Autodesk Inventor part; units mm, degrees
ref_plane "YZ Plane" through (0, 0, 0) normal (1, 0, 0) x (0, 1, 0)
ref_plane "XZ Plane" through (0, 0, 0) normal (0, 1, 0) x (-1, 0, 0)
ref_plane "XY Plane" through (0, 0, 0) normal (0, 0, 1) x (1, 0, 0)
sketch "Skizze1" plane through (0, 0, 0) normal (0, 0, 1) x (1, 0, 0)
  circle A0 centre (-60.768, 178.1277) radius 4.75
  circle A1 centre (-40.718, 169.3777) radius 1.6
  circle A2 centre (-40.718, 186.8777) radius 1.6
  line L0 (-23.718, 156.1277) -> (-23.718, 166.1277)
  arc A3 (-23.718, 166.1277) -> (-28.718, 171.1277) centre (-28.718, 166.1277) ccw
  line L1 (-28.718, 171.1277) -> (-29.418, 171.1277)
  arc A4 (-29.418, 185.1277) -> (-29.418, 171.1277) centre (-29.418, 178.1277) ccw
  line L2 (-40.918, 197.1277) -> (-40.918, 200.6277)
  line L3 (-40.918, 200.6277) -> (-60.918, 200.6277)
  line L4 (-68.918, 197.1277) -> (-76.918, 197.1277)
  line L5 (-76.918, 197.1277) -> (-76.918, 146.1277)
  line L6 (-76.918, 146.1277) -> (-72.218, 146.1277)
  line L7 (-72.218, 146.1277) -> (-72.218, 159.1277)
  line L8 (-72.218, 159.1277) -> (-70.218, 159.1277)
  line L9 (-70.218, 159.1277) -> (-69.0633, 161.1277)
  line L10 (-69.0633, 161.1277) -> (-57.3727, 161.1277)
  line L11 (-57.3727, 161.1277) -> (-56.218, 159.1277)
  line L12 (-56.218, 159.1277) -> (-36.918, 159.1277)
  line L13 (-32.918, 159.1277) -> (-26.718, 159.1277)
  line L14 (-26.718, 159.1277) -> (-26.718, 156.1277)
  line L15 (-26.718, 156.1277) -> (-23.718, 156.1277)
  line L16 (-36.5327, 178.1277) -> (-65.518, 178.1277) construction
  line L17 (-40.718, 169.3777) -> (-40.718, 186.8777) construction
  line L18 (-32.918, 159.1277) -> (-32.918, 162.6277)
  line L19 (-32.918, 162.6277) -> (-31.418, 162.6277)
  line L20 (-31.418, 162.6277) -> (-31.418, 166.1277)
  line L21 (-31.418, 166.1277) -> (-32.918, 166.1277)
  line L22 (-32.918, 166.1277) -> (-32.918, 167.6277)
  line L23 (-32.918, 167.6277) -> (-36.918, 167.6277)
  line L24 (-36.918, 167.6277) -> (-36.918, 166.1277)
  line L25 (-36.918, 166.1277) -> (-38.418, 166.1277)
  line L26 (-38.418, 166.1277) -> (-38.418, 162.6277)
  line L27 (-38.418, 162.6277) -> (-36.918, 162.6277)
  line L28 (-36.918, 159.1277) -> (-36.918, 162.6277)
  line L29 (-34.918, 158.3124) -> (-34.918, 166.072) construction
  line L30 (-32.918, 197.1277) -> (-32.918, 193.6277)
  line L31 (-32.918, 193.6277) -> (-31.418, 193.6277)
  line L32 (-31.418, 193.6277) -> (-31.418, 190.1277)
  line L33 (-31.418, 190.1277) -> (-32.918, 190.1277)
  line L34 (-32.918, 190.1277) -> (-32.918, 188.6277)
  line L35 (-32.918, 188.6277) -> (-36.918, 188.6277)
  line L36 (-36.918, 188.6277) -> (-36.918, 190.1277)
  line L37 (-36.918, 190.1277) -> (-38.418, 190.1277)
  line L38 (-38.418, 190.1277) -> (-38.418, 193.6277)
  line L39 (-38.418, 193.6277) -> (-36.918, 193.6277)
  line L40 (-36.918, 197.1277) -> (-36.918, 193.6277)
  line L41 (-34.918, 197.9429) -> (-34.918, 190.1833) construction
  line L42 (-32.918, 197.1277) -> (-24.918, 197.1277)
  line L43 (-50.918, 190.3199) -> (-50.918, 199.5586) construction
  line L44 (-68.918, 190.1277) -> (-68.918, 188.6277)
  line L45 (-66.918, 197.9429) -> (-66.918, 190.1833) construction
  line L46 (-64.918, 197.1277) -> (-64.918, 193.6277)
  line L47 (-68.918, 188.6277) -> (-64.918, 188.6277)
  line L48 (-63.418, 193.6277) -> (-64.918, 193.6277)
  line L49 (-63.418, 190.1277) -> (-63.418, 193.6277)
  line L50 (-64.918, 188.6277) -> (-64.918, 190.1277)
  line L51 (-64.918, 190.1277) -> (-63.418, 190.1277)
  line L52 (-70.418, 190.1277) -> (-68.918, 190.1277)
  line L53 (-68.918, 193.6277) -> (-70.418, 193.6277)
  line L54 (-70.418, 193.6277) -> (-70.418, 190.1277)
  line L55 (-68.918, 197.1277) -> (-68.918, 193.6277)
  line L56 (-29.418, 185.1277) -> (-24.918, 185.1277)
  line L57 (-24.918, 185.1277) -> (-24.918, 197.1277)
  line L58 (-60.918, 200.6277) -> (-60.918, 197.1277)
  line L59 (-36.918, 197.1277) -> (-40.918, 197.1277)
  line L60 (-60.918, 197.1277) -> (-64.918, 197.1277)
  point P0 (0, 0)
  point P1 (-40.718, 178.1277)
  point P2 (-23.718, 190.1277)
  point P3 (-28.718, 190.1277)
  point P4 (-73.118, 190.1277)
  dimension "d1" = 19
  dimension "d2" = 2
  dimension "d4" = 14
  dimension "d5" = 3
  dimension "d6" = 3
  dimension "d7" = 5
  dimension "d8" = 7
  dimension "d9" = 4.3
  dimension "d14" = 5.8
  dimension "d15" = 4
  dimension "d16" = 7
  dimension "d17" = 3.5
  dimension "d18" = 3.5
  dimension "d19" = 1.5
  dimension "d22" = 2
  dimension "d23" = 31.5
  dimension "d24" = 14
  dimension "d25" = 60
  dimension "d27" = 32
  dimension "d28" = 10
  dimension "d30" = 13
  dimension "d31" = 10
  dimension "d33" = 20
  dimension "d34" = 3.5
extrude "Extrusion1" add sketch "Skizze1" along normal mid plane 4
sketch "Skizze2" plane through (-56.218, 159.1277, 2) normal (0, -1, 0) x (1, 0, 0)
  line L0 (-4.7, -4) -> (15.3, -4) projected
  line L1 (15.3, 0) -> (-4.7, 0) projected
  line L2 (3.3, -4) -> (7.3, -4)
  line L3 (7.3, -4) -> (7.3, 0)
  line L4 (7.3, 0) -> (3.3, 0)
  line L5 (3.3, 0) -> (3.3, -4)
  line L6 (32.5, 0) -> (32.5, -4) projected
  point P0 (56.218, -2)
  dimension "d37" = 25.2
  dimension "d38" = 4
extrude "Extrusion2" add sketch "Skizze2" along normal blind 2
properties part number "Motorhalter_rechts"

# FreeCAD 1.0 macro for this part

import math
import FreeCAD as App
import Part
import Sketcher

V = App.Vector
Q = App.Units.Quantity

doc = App.newDocument("Part")
body = doc.addObject("PartDesign::Body", "Body")

# Sketch on XY plane
sketch1 = body.newObject("Sketcher::SketchObject", "Sketch")
sketch1.AttachmentSupport = (doc.getObject("XY_Plane"), [""])
sketch1.MapMode = "FlatFace"
sketch1.addGeometry(Part.LineSegment(V(-26.718, 156.1277, 0), V(-23.718, 156.1277, 0)), False)
sketch1.addGeometry(Part.LineSegment(V(-23.718, 156.1277, 0), V(-23.718, 166.1277, 0)), False)
sketch1.addGeometry(Part.ArcOfCircle(Part.Circle(V(-28.718, 166.1277, 0), V(0, 0, 1), 5), math.radians(0), math.radians(90)), False)
sketch1.addGeometry(Part.LineSegment(V(-28.718, 171.1277, 0), V(-29.418, 171.1277, 0)), False)
sketch1.addGeometry(Part.ArcOfCircle(Part.Circle(V(-29.418, 178.1277, 0), V(0, 0, 1), 7), math.radians(90), math.radians(270)), False)
sketch1.addGeometry(Part.LineSegment(V(-29.418, 185.1277, 0), V(-24.918, 185.1277, 0)), False)
sketch1.addGeometry(Part.LineSegment(V(-24.918, 185.1277, 0), V(-24.918, 197.1277, 0)), False)
sketch1.addGeometry(Part.LineSegment(V(-24.918, 197.1277, 0), V(-32.918, 197.1277, 0)), False)
sketch1.addGeometry(Part.LineSegment(V(-32.918, 197.1277, 0), V(-32.918, 193.6277, 0)), False)
sketch1.addGeometry(Part.LineSegment(V(-32.918, 193.6277, 0), V(-31.418, 193.6277, 0)), False)
sketch1.addGeometry(Part.LineSegment(V(-31.418, 193.6277, 0), V(-31.418, 190.1277, 0)), False)
sketch1.addGeometry(Part.LineSegment(V(-31.418, 190.1277, 0), V(-32.918, 190.1277, 0)), False)
sketch1.addGeometry(Part.LineSegment(V(-32.918, 190.1277, 0), V(-32.918, 188.6277, 0)), False)
sketch1.addGeometry(Part.LineSegment(V(-32.918, 188.6277, 0), V(-36.918, 188.6277, 0)), False)
sketch1.addGeometry(Part.LineSegment(V(-36.918, 188.6277, 0), V(-36.918, 190.1277, 0)), False)
sketch1.addGeometry(Part.LineSegment(V(-36.918, 190.1277, 0), V(-38.418, 190.1277, 0)), False)
sketch1.addGeometry(Part.LineSegment(V(-38.418, 190.1277, 0), V(-38.418, 193.6277, 0)), False)
sketch1.addGeometry(Part.LineSegment(V(-38.418, 193.6277, 0), V(-36.918, 193.6277, 0)), False)
sketch1.addGeometry(Part.LineSegment(V(-36.918, 193.6277, 0), V(-36.918, 197.1277, 0)), False)
sketch1.addGeometry(Part.LineSegment(V(-36.918, 197.1277, 0), V(-40.918, 197.1277, 0)), False)
sketch1.addGeometry(Part.LineSegment(V(-40.918, 197.1277, 0), V(-40.918, 200.6277, 0)), False)
sketch1.addGeometry(Part.LineSegment(V(-40.918, 200.6277, 0), V(-60.918, 200.6277, 0)), False)
sketch1.addGeometry(Part.LineSegment(V(-60.918, 200.6277, 0), V(-60.918, 197.1277, 0)), False)
sketch1.addGeometry(Part.LineSegment(V(-60.918, 197.1277, 0), V(-64.918, 197.1277, 0)), False)
sketch1.addGeometry(Part.LineSegment(V(-64.918, 197.1277, 0), V(-64.918, 193.6277, 0)), False)
sketch1.addGeometry(Part.LineSegment(V(-64.918, 193.6277, 0), V(-63.418, 193.6277, 0)), False)
sketch1.addGeometry(Part.LineSegment(V(-63.418, 193.6277, 0), V(-63.418, 190.1277, 0)), False)
sketch1.addGeometry(Part.LineSegment(V(-63.418, 190.1277, 0), V(-64.918, 190.1277, 0)), False)
sketch1.addGeometry(Part.LineSegment(V(-64.918, 190.1277, 0), V(-64.918, 188.6277, 0)), False)
sketch1.addGeometry(Part.LineSegment(V(-64.918, 188.6277, 0), V(-68.918, 188.6277, 0)), False)
sketch1.addGeometry(Part.LineSegment(V(-68.918, 188.6277, 0), V(-68.918, 190.1277, 0)), False)
sketch1.addGeometry(Part.LineSegment(V(-68.918, 190.1277, 0), V(-70.418, 190.1277, 0)), False)
sketch1.addGeometry(Part.LineSegment(V(-70.418, 190.1277, 0), V(-70.418, 193.6277, 0)), False)
sketch1.addGeometry(Part.LineSegment(V(-70.418, 193.6277, 0), V(-68.918, 193.6277, 0)), False)
sketch1.addGeometry(Part.LineSegment(V(-68.918, 193.6277, 0), V(-68.918, 197.1277, 0)), False)
sketch1.addGeometry(Part.LineSegment(V(-68.918, 197.1277, 0), V(-76.918, 197.1277, 0)), False)
sketch1.addGeometry(Part.LineSegment(V(-76.918, 197.1277, 0), V(-76.918, 146.1277, 0)), False)
sketch1.addGeometry(Part.LineSegment(V(-76.918, 146.1277, 0), V(-72.218, 146.1277, 0)), False)
sketch1.addGeometry(Part.LineSegment(V(-72.218, 146.1277, 0), V(-72.218, 159.1277, 0)), False)
sketch1.addGeometry(Part.LineSegment(V(-72.218, 159.1277, 0), V(-70.218, 159.1277, 0)), False)
sketch1.addGeometry(Part.LineSegment(V(-70.218, 159.1277, 0), V(-69.0633, 161.1277, 0)), False)
sketch1.addGeometry(Part.LineSegment(V(-69.0633, 161.1277, 0), V(-57.3727, 161.1277, 0)), False)
sketch1.addGeometry(Part.LineSegment(V(-57.3727, 161.1277, 0), V(-56.218, 159.1277, 0)), False)
sketch1.addGeometry(Part.LineSegment(V(-56.218, 159.1277, 0), V(-36.918, 159.1277, 0)), False)
sketch1.addGeometry(Part.LineSegment(V(-36.918, 159.1277, 0), V(-36.918, 162.6277, 0)), False)
sketch1.addGeometry(Part.LineSegment(V(-36.918, 162.6277, 0), V(-38.418, 162.6277, 0)), False)
sketch1.addGeometry(Part.LineSegment(V(-38.418, 162.6277, 0), V(-38.418, 166.1277, 0)), False)
sketch1.addGeometry(Part.LineSegment(V(-38.418, 166.1277, 0), V(-36.918, 166.1277, 0)), False)
sketch1.addGeometry(Part.LineSegment(V(-36.918, 166.1277, 0), V(-36.918, 167.6277, 0)), False)
sketch1.addGeometry(Part.LineSegment(V(-36.918, 167.6277, 0), V(-32.918, 167.6277, 0)), False)
sketch1.addGeometry(Part.LineSegment(V(-32.918, 167.6277, 0), V(-32.918, 166.1277, 0)), False)
sketch1.addGeometry(Part.LineSegment(V(-32.918, 166.1277, 0), V(-31.418, 166.1277, 0)), False)
sketch1.addGeometry(Part.LineSegment(V(-31.418, 166.1277, 0), V(-31.418, 162.6277, 0)), False)
sketch1.addGeometry(Part.LineSegment(V(-31.418, 162.6277, 0), V(-32.918, 162.6277, 0)), False)
sketch1.addGeometry(Part.LineSegment(V(-32.918, 162.6277, 0), V(-32.918, 159.1277, 0)), False)
sketch1.addGeometry(Part.LineSegment(V(-32.918, 159.1277, 0), V(-26.718, 159.1277, 0)), False)
sketch1.addGeometry(Part.LineSegment(V(-26.718, 159.1277, 0), V(-26.718, 156.1277, 0)), False)
sketch1.addGeometry(Part.Circle(V(-40.718, 169.3777, 0), V(0, 0, 1), 1.6), False)
sketch1.addGeometry(Part.Circle(V(-60.768, 178.1277, 0), V(0, 0, 1), 4.75), False)
sketch1.addGeometry(Part.Circle(V(-40.718, 186.8777, 0), V(0, 0, 1), 1.6), False)
sketch1.addConstraint(Sketcher.Constraint("Coincident", 0, 2, 1, 1))
sketch1.addConstraint(Sketcher.Constraint("Tangent", 1, 2, 2, 1))
sketch1.addConstraint(Sketcher.Constraint("Tangent", 2, 2, 3, 1))
sketch1.addConstraint(Sketcher.Constraint("Tangent", 3, 2, 4, 2))
sketch1.addConstraint(Sketcher.Constraint("Tangent", 4, 1, 5, 1))
sketch1.addConstraint(Sketcher.Constraint("Coincident", 5, 2, 6, 1))
sketch1.addConstraint(Sketcher.Constraint("Coincident", 6, 2, 7, 1))
sketch1.addConstraint(Sketcher.Constraint("Coincident", 7, 2, 8, 1))
sketch1.addConstraint(Sketcher.Constraint("Coincident", 8, 2, 9, 1))
sketch1.addConstraint(Sketcher.Constraint("Coincident", 9, 2, 10, 1))
sketch1.addConstraint(Sketcher.Constraint("Coincident", 10, 2, 11, 1))
sketch1.addConstraint(Sketcher.Constraint("Coincident", 11, 2, 12, 1))
sketch1.addConstraint(Sketcher.Constraint("Coincident", 12, 2, 13, 1))
sketch1.addConstraint(Sketcher.Constraint("Coincident", 13, 2, 14, 1))
sketch1.addConstraint(Sketcher.Constraint("Coincident", 14, 2, 15, 1))
sketch1.addConstraint(Sketcher.Constraint("Coincident", 15, 2, 16, 1))
sketch1.addConstraint(Sketcher.Constraint("Coincident", 16, 2, 17, 1))
sketch1.addConstraint(Sketcher.Constraint("Coincident", 17, 2, 18, 1))
sketch1.addConstraint(Sketcher.Constraint("Coincident", 18, 2, 19, 1))
sketch1.addConstraint(Sketcher.Constraint("Coincident", 19, 2, 20, 1))
sketch1.addConstraint(Sketcher.Constraint("Coincident", 20, 2, 21, 1))
sketch1.addConstraint(Sketcher.Constraint("Coincident", 21, 2, 22, 1))
sketch1.addConstraint(Sketcher.Constraint("Coincident", 22, 2, 23, 1))
sketch1.addConstraint(Sketcher.Constraint("Coincident", 23, 2, 24, 1))
sketch1.addConstraint(Sketcher.Constraint("Coincident", 24, 2, 25, 1))
sketch1.addConstraint(Sketcher.Constraint("Coincident", 25, 2, 26, 1))
sketch1.addConstraint(Sketcher.Constraint("Coincident", 26, 2, 27, 1))
sketch1.addConstraint(Sketcher.Constraint("Coincident", 27, 2, 28, 1))
sketch1.addConstraint(Sketcher.Constraint("Coincident", 28, 2, 29, 1))
sketch1.addConstraint(Sketcher.Constraint("Coincident", 29, 2, 30, 1))
sketch1.addConstraint(Sketcher.Constraint("Coincident", 30, 2, 31, 1))
sketch1.addConstraint(Sketcher.Constraint("Coincident", 31, 2, 32, 1))
sketch1.addConstraint(Sketcher.Constraint("Coincident", 32, 2, 33, 1))
sketch1.addConstraint(Sketcher.Constraint("Coincident", 33, 2, 34, 1))
sketch1.addConstraint(Sketcher.Constraint("Coincident", 34, 2, 35, 1))
sketch1.addConstraint(Sketcher.Constraint("Coincident", 35, 2, 36, 1))
sketch1.addConstraint(Sketcher.Constraint("Coincident", 36, 2, 37, 1))
sketch1.addConstraint(Sketcher.Constraint("Coincident", 37, 2, 38, 1))
sketch1.addConstraint(Sketcher.Constraint("Coincident", 38, 2, 39, 1))
sketch1.addConstraint(Sketcher.Constraint("Coincident", 39, 2, 40, 1))
sketch1.addConstraint(Sketcher.Constraint("Coincident", 40, 2, 41, 1))
sketch1.addConstraint(Sketcher.Constraint("Coincident", 41, 2, 42, 1))
sketch1.addConstraint(Sketcher.Constraint("Coincident", 42, 2, 43, 1))
sketch1.addConstraint(Sketcher.Constraint("Coincident", 43, 2, 44, 1))
sketch1.addConstraint(Sketcher.Constraint("Coincident", 44, 2, 45, 1))
sketch1.addConstraint(Sketcher.Constraint("Coincident", 45, 2, 46, 1))
sketch1.addConstraint(Sketcher.Constraint("Coincident", 46, 2, 47, 1))
sketch1.addConstraint(Sketcher.Constraint("Coincident", 47, 2, 48, 1))
sketch1.addConstraint(Sketcher.Constraint("Coincident", 48, 2, 49, 1))
sketch1.addConstraint(Sketcher.Constraint("Coincident", 49, 2, 50, 1))
sketch1.addConstraint(Sketcher.Constraint("Coincident", 50, 2, 51, 1))
sketch1.addConstraint(Sketcher.Constraint("Coincident", 51, 2, 52, 1))
sketch1.addConstraint(Sketcher.Constraint("Coincident", 52, 2, 53, 1))
sketch1.addConstraint(Sketcher.Constraint("Coincident", 53, 2, 54, 1))
sketch1.addConstraint(Sketcher.Constraint("Coincident", 54, 2, 55, 1))
sketch1.addConstraint(Sketcher.Constraint("Coincident", 55, 2, 56, 1))
sketch1.addConstraint(Sketcher.Constraint("Coincident", 56, 2, 0, 1))
sketch1.addConstraint(Sketcher.Constraint("Horizontal", 0))
sketch1.addConstraint(Sketcher.Constraint("Vertical", 1))
sketch1.addConstraint(Sketcher.Constraint("Horizontal", 3))
sketch1.addConstraint(Sketcher.Constraint("Horizontal", 5))
sketch1.addConstraint(Sketcher.Constraint("Vertical", 6))
sketch1.addConstraint(Sketcher.Constraint("Horizontal", 7))
sketch1.addConstraint(Sketcher.Constraint("Vertical", 8))
sketch1.addConstraint(Sketcher.Constraint("Horizontal", 9))
sketch1.addConstraint(Sketcher.Constraint("Vertical", 10))
sketch1.addConstraint(Sketcher.Constraint("Horizontal", 11))
sketch1.addConstraint(Sketcher.Constraint("Vertical", 12))
sketch1.addConstraint(Sketcher.Constraint("Horizontal", 13))
sketch1.addConstraint(Sketcher.Constraint("Vertical", 14))
sketch1.addConstraint(Sketcher.Constraint("Horizontal", 15))
sketch1.addConstraint(Sketcher.Constraint("Vertical", 16))
sketch1.addConstraint(Sketcher.Constraint("Horizontal", 17))
sketch1.addConstraint(Sketcher.Constraint("Vertical", 18))
sketch1.addConstraint(Sketcher.Constraint("Horizontal", 19))
sketch1.addConstraint(Sketcher.Constraint("Vertical", 20))
sketch1.addConstraint(Sketcher.Constraint("Horizontal", 21))
sketch1.addConstraint(Sketcher.Constraint("Vertical", 22))
sketch1.addConstraint(Sketcher.Constraint("Horizontal", 23))
sketch1.addConstraint(Sketcher.Constraint("Vertical", 24))
sketch1.addConstraint(Sketcher.Constraint("Horizontal", 25))
sketch1.addConstraint(Sketcher.Constraint("Vertical", 26))
sketch1.addConstraint(Sketcher.Constraint("Horizontal", 27))
sketch1.addConstraint(Sketcher.Constraint("Vertical", 28))
sketch1.addConstraint(Sketcher.Constraint("Horizontal", 29))
sketch1.addConstraint(Sketcher.Constraint("Vertical", 30))
sketch1.addConstraint(Sketcher.Constraint("Horizontal", 31))
sketch1.addConstraint(Sketcher.Constraint("Vertical", 32))
sketch1.addConstraint(Sketcher.Constraint("Horizontal", 33))
sketch1.addConstraint(Sketcher.Constraint("Vertical", 34))
sketch1.addConstraint(Sketcher.Constraint("Horizontal", 35))
sketch1.addConstraint(Sketcher.Constraint("Vertical", 36))
sketch1.addConstraint(Sketcher.Constraint("Horizontal", 37))
sketch1.addConstraint(Sketcher.Constraint("Vertical", 38))
sketch1.addConstraint(Sketcher.Constraint("Horizontal", 39))
sketch1.addConstraint(Sketcher.Constraint("Horizontal", 41))
sketch1.addConstraint(Sketcher.Constraint("Horizontal", 43))
sketch1.addConstraint(Sketcher.Constraint("Vertical", 44))
sketch1.addConstraint(Sketcher.Constraint("Horizontal", 45))
sketch1.addConstraint(Sketcher.Constraint("Vertical", 46))
sketch1.addConstraint(Sketcher.Constraint("Horizontal", 47))
sketch1.addConstraint(Sketcher.Constraint("Vertical", 48))
sketch1.addConstraint(Sketcher.Constraint("Horizontal", 49))
sketch1.addConstraint(Sketcher.Constraint("Vertical", 50))
sketch1.addConstraint(Sketcher.Constraint("Horizontal", 51))
sketch1.addConstraint(Sketcher.Constraint("Vertical", 52))
sketch1.addConstraint(Sketcher.Constraint("Horizontal", 53))
sketch1.addConstraint(Sketcher.Constraint("Vertical", 54))
sketch1.addConstraint(Sketcher.Constraint("Horizontal", 55))
sketch1.addConstraint(Sketcher.Constraint("Vertical", 56))
sketch1.addConstraint(Sketcher.Constraint("Equal", 57, 59))
sketch1.addConstraint(Sketcher.Constraint("Horizontal", 4, 3, 58, 3))
sketch1.addConstraint(Sketcher.Constraint("Horizontal", 11, 2, 14, 2))
sketch1.addConstraint(Sketcher.Constraint("Horizontal", 9, 2, 16, 2))
sketch1.addConstraint(Sketcher.Constraint("Horizontal", 7, 2, 18, 2))
sketch1.addConstraint(Sketcher.Constraint("Horizontal", 19, 2, 22, 2))
sketch1.addConstraint(Sketcher.Constraint("Horizontal", 17, 2, 24, 2))
sketch1.addConstraint(Sketcher.Constraint("Horizontal", 15, 2, 26, 2))
sketch1.addConstraint(Sketcher.Constraint("Horizontal", 13, 2, 28, 2))
sketch1.addConstraint(Sketcher.Constraint("Horizontal", 27, 2, 30, 2))
sketch1.addConstraint(Sketcher.Constraint("Horizontal", 25, 2, 32, 2))
sketch1.addConstraint(Sketcher.Constraint("Horizontal", 23, 2, 34, 2))
sketch1.addConstraint(Sketcher.Constraint("Horizontal", 39, 2, 42, 2))
sketch1.addConstraint(Sketcher.Constraint("Horizontal", 1, 2, 46, 2))
sketch1.addConstraint(Sketcher.Constraint("Horizontal", 47, 2, 50, 2))
sketch1.addConstraint(Sketcher.Constraint("Horizontal", 45, 2, 52, 2))
sketch1.addConstraint(Sketcher.Constraint("Horizontal", 43, 2, 54, 2))
sketch1.addConstraint(Sketcher.Constraint("Vertical", 57, 3, 59, 3))
sketch1.addConstraint(Sketcher.Constraint("Vertical", 8, 2, 11, 2))
sketch1.addConstraint(Sketcher.Constraint("Vertical", 14, 2, 17, 2))
sketch1.addConstraint(Sketcher.Constraint("Vertical", 24, 2, 27, 2))
sketch1.addConstraint(Sketcher.Constraint("Vertical", 30, 2, 33, 2))
sketch1.addConstraint(Sketcher.Constraint("Vertical", 18, 2, 43, 2))
sketch1.addConstraint(Sketcher.Constraint("Vertical", 16, 2, 45, 2))
sketch1.addConstraint(Sketcher.Constraint("Vertical", 44, 2, 47, 2))
sketch1.addConstraint(Sketcher.Constraint("Vertical", 12, 2, 49, 2))
sketch1.addConstraint(Sketcher.Constraint("Vertical", 10, 2, 51, 2))
sketch1.addConstraint(Sketcher.Constraint("Vertical", 50, 2, 53, 2))
sketch1.addConstraint(Sketcher.Constraint("Equal", 11, 15))
sketch1.addConstraint(Sketcher.Constraint("Equal", 13, 19))
sketch1.addConstraint(Sketcher.Constraint("Equal", 19, 23))
sketch1.addConstraint(Sketcher.Constraint("Equal", 17, 25))
sketch1.addConstraint(Sketcher.Constraint("Equal", 23, 29))
sketch1.addConstraint(Sketcher.Constraint("Equal", 27, 31))
sketch1.addConstraint(Sketcher.Constraint("Equal", 7, 35))
sketch1.addConstraint(Sketcher.Constraint("Equal", 8, 10))
sketch1.addConstraint(Sketcher.Constraint("Equal", 53, 12))
sketch1.addConstraint(Sketcher.Constraint("Equal", 18, 20))
sketch1.addConstraint(Sketcher.Constraint("Equal", 34, 44))
sketch1.addConstraint(Sketcher.Constraint("Equal", 44, 46))
sketch1.addConstraint(Sketcher.Constraint("Equal", 30, 48))
sketch1.addConstraint(Sketcher.Constraint("Equal", 0, 56))
sketch1.addConstraint(Sketcher.Constraint("Equal", 40, 42))
sketch1.addConstraint(Sketcher.Constraint("Radius", 2, Q("5 mm")))
sketch1.addConstraint(Sketcher.Constraint("Radius", 4, Q("7 mm")))
sketch1.addConstraint(Sketcher.Constraint("DistanceX", 0, 1, 0, 2, Q("3 mm")))
sketch1.addConstraint(Sketcher.Constraint("DistanceX", 13, 2, 13, 1, Q("4 mm")))
sketch1.addConstraint(Sketcher.Constraint("DistanceX", 21, 2, 21, 1, Q("20 mm")))
sketch1.addConstraint(Sketcher.Constraint("DistanceX", 39, 1, 39, 2, Q("2 mm")))
sketch1.addConstraint(Sketcher.Constraint("DistanceY", 1, 1, 1, 2, Q("10 mm")))
sketch1.addConstraint(Sketcher.Constraint("DistanceY", 38, 1, 38, 2, Q("13 mm")))
sketch1.addConstraint(Sketcher.Constraint("Angle", 40, Q("60 deg")))
sketch1.addConstraint(Sketcher.Constraint("DistanceX", 9, 1, 9, 2, Q("1.5 mm")))
sketch1.addConstraint(Sketcher.Constraint("Diameter", 57, Q("3.2 mm")))
sketch1.addConstraint(Sketcher.Constraint("Diameter", 58, Q("9.5 mm")))
sketch1.addConstraint(Sketcher.Constraint("DistanceX", 7, 2, 7, 1, Q("8 mm")))
sketch1.addConstraint(Sketcher.Constraint("DistanceY", 6, 1, 6, 2, Q("12 mm")))
sketch1.addConstraint(Sketcher.Constraint("DistanceX", 3, 2, 3, 1, Q("0.7 mm")))
sketch1.addConstraint(Sketcher.Constraint("DistanceX", 5, 1, 5, 2, Q("4.5 mm")))
sketch1.addConstraint(Sketcher.Constraint("DistanceX", 37, 1, 37, 2, Q("4.7 mm")))
sketch1.addConstraint(Sketcher.Constraint("DistanceX", 43, 1, 43, 2, Q("19.3 mm")))
sketch1.addConstraint(Sketcher.Constraint("DistanceX", 41, 1, 41, 2, Q("11.6906 mm")))
sketch1.addConstraint(Sketcher.Constraint("DistanceX", 2, 3, -1, 1, Q("28.718 mm")))
sketch1.addConstraint(Sketcher.Constraint("DistanceX", 57, 3, -1, 1, Q("40.718 mm")))
sketch1.addConstraint(Sketcher.Constraint("DistanceX", 58, 3, -1, 1, Q("60.768 mm")))
sketch1.addConstraint(Sketcher.Constraint("DistanceY", -1, 1, 2, 3, Q("166.1277 mm")))
sketch1.addConstraint(Sketcher.Constraint("DistanceY", -1, 1, 57, 3, Q("169.3777 mm")))
sketch1.addConstraint(Sketcher.Constraint("DistanceY", -1, 1, 59, 3, Q("186.8777 mm")))
pad1 = body.newObject("PartDesign::Pad", "Pad")
pad1.Profile = sketch1
pad1.Length = 4
pad1.Midplane = True

# Sketch on XZ plane
sketch2 = body.newObject("Sketcher::SketchObject", "Sketch001")
sketch2.AttachmentSupport = (doc.getObject("XZ_Plane"), [""])
sketch2.MapMode = "FlatFace"
sketch2.AttachmentOffset = App.Placement(V(0, 0, -159.1277), App.Rotation())
sketch2.addGeometry(Part.LineSegment(V(-52.918, 2, 0), V(-52.918, -2, 0)), False)
sketch2.addGeometry(Part.LineSegment(V(-52.918, -2, 0), V(-48.918, -2, 0)), False)
sketch2.addGeometry(Part.LineSegment(V(-48.918, -2, 0), V(-48.918, 2, 0)), False)
sketch2.addGeometry(Part.LineSegment(V(-48.918, 2, 0), V(-52.918, 2, 0)), False)
sketch2.addConstraint(Sketcher.Constraint("Coincident", 0, 2, 1, 1))
sketch2.addConstraint(Sketcher.Constraint("Coincident", 1, 2, 2, 1))
sketch2.addConstraint(Sketcher.Constraint("Coincident", 2, 2, 3, 1))
sketch2.addConstraint(Sketcher.Constraint("Coincident", 3, 2, 0, 1))
sketch2.addConstraint(Sketcher.Constraint("Vertical", 0))
sketch2.addConstraint(Sketcher.Constraint("Horizontal", 1))
sketch2.addConstraint(Sketcher.Constraint("Vertical", 2))
sketch2.addConstraint(Sketcher.Constraint("Horizontal", 3))
sketch2.addConstraint(Sketcher.Constraint("Equal", 3, 0))
sketch2.addConstraint(Sketcher.Constraint("DistanceX", 1, 1, 1, 2, Q("4 mm")))
sketch2.addConstraint(Sketcher.Constraint("DistanceY", 0, 2, -1, 1, Q("2 mm")))
sketch2.addConstraint(Sketcher.Constraint("DistanceX", 0, 2, -1, 1, Q("52.918 mm")))
pad2 = body.newObject("PartDesign::Pad", "Pad001")
pad2.Profile = sketch2
pad2.Length = 2

doc.recompute()
